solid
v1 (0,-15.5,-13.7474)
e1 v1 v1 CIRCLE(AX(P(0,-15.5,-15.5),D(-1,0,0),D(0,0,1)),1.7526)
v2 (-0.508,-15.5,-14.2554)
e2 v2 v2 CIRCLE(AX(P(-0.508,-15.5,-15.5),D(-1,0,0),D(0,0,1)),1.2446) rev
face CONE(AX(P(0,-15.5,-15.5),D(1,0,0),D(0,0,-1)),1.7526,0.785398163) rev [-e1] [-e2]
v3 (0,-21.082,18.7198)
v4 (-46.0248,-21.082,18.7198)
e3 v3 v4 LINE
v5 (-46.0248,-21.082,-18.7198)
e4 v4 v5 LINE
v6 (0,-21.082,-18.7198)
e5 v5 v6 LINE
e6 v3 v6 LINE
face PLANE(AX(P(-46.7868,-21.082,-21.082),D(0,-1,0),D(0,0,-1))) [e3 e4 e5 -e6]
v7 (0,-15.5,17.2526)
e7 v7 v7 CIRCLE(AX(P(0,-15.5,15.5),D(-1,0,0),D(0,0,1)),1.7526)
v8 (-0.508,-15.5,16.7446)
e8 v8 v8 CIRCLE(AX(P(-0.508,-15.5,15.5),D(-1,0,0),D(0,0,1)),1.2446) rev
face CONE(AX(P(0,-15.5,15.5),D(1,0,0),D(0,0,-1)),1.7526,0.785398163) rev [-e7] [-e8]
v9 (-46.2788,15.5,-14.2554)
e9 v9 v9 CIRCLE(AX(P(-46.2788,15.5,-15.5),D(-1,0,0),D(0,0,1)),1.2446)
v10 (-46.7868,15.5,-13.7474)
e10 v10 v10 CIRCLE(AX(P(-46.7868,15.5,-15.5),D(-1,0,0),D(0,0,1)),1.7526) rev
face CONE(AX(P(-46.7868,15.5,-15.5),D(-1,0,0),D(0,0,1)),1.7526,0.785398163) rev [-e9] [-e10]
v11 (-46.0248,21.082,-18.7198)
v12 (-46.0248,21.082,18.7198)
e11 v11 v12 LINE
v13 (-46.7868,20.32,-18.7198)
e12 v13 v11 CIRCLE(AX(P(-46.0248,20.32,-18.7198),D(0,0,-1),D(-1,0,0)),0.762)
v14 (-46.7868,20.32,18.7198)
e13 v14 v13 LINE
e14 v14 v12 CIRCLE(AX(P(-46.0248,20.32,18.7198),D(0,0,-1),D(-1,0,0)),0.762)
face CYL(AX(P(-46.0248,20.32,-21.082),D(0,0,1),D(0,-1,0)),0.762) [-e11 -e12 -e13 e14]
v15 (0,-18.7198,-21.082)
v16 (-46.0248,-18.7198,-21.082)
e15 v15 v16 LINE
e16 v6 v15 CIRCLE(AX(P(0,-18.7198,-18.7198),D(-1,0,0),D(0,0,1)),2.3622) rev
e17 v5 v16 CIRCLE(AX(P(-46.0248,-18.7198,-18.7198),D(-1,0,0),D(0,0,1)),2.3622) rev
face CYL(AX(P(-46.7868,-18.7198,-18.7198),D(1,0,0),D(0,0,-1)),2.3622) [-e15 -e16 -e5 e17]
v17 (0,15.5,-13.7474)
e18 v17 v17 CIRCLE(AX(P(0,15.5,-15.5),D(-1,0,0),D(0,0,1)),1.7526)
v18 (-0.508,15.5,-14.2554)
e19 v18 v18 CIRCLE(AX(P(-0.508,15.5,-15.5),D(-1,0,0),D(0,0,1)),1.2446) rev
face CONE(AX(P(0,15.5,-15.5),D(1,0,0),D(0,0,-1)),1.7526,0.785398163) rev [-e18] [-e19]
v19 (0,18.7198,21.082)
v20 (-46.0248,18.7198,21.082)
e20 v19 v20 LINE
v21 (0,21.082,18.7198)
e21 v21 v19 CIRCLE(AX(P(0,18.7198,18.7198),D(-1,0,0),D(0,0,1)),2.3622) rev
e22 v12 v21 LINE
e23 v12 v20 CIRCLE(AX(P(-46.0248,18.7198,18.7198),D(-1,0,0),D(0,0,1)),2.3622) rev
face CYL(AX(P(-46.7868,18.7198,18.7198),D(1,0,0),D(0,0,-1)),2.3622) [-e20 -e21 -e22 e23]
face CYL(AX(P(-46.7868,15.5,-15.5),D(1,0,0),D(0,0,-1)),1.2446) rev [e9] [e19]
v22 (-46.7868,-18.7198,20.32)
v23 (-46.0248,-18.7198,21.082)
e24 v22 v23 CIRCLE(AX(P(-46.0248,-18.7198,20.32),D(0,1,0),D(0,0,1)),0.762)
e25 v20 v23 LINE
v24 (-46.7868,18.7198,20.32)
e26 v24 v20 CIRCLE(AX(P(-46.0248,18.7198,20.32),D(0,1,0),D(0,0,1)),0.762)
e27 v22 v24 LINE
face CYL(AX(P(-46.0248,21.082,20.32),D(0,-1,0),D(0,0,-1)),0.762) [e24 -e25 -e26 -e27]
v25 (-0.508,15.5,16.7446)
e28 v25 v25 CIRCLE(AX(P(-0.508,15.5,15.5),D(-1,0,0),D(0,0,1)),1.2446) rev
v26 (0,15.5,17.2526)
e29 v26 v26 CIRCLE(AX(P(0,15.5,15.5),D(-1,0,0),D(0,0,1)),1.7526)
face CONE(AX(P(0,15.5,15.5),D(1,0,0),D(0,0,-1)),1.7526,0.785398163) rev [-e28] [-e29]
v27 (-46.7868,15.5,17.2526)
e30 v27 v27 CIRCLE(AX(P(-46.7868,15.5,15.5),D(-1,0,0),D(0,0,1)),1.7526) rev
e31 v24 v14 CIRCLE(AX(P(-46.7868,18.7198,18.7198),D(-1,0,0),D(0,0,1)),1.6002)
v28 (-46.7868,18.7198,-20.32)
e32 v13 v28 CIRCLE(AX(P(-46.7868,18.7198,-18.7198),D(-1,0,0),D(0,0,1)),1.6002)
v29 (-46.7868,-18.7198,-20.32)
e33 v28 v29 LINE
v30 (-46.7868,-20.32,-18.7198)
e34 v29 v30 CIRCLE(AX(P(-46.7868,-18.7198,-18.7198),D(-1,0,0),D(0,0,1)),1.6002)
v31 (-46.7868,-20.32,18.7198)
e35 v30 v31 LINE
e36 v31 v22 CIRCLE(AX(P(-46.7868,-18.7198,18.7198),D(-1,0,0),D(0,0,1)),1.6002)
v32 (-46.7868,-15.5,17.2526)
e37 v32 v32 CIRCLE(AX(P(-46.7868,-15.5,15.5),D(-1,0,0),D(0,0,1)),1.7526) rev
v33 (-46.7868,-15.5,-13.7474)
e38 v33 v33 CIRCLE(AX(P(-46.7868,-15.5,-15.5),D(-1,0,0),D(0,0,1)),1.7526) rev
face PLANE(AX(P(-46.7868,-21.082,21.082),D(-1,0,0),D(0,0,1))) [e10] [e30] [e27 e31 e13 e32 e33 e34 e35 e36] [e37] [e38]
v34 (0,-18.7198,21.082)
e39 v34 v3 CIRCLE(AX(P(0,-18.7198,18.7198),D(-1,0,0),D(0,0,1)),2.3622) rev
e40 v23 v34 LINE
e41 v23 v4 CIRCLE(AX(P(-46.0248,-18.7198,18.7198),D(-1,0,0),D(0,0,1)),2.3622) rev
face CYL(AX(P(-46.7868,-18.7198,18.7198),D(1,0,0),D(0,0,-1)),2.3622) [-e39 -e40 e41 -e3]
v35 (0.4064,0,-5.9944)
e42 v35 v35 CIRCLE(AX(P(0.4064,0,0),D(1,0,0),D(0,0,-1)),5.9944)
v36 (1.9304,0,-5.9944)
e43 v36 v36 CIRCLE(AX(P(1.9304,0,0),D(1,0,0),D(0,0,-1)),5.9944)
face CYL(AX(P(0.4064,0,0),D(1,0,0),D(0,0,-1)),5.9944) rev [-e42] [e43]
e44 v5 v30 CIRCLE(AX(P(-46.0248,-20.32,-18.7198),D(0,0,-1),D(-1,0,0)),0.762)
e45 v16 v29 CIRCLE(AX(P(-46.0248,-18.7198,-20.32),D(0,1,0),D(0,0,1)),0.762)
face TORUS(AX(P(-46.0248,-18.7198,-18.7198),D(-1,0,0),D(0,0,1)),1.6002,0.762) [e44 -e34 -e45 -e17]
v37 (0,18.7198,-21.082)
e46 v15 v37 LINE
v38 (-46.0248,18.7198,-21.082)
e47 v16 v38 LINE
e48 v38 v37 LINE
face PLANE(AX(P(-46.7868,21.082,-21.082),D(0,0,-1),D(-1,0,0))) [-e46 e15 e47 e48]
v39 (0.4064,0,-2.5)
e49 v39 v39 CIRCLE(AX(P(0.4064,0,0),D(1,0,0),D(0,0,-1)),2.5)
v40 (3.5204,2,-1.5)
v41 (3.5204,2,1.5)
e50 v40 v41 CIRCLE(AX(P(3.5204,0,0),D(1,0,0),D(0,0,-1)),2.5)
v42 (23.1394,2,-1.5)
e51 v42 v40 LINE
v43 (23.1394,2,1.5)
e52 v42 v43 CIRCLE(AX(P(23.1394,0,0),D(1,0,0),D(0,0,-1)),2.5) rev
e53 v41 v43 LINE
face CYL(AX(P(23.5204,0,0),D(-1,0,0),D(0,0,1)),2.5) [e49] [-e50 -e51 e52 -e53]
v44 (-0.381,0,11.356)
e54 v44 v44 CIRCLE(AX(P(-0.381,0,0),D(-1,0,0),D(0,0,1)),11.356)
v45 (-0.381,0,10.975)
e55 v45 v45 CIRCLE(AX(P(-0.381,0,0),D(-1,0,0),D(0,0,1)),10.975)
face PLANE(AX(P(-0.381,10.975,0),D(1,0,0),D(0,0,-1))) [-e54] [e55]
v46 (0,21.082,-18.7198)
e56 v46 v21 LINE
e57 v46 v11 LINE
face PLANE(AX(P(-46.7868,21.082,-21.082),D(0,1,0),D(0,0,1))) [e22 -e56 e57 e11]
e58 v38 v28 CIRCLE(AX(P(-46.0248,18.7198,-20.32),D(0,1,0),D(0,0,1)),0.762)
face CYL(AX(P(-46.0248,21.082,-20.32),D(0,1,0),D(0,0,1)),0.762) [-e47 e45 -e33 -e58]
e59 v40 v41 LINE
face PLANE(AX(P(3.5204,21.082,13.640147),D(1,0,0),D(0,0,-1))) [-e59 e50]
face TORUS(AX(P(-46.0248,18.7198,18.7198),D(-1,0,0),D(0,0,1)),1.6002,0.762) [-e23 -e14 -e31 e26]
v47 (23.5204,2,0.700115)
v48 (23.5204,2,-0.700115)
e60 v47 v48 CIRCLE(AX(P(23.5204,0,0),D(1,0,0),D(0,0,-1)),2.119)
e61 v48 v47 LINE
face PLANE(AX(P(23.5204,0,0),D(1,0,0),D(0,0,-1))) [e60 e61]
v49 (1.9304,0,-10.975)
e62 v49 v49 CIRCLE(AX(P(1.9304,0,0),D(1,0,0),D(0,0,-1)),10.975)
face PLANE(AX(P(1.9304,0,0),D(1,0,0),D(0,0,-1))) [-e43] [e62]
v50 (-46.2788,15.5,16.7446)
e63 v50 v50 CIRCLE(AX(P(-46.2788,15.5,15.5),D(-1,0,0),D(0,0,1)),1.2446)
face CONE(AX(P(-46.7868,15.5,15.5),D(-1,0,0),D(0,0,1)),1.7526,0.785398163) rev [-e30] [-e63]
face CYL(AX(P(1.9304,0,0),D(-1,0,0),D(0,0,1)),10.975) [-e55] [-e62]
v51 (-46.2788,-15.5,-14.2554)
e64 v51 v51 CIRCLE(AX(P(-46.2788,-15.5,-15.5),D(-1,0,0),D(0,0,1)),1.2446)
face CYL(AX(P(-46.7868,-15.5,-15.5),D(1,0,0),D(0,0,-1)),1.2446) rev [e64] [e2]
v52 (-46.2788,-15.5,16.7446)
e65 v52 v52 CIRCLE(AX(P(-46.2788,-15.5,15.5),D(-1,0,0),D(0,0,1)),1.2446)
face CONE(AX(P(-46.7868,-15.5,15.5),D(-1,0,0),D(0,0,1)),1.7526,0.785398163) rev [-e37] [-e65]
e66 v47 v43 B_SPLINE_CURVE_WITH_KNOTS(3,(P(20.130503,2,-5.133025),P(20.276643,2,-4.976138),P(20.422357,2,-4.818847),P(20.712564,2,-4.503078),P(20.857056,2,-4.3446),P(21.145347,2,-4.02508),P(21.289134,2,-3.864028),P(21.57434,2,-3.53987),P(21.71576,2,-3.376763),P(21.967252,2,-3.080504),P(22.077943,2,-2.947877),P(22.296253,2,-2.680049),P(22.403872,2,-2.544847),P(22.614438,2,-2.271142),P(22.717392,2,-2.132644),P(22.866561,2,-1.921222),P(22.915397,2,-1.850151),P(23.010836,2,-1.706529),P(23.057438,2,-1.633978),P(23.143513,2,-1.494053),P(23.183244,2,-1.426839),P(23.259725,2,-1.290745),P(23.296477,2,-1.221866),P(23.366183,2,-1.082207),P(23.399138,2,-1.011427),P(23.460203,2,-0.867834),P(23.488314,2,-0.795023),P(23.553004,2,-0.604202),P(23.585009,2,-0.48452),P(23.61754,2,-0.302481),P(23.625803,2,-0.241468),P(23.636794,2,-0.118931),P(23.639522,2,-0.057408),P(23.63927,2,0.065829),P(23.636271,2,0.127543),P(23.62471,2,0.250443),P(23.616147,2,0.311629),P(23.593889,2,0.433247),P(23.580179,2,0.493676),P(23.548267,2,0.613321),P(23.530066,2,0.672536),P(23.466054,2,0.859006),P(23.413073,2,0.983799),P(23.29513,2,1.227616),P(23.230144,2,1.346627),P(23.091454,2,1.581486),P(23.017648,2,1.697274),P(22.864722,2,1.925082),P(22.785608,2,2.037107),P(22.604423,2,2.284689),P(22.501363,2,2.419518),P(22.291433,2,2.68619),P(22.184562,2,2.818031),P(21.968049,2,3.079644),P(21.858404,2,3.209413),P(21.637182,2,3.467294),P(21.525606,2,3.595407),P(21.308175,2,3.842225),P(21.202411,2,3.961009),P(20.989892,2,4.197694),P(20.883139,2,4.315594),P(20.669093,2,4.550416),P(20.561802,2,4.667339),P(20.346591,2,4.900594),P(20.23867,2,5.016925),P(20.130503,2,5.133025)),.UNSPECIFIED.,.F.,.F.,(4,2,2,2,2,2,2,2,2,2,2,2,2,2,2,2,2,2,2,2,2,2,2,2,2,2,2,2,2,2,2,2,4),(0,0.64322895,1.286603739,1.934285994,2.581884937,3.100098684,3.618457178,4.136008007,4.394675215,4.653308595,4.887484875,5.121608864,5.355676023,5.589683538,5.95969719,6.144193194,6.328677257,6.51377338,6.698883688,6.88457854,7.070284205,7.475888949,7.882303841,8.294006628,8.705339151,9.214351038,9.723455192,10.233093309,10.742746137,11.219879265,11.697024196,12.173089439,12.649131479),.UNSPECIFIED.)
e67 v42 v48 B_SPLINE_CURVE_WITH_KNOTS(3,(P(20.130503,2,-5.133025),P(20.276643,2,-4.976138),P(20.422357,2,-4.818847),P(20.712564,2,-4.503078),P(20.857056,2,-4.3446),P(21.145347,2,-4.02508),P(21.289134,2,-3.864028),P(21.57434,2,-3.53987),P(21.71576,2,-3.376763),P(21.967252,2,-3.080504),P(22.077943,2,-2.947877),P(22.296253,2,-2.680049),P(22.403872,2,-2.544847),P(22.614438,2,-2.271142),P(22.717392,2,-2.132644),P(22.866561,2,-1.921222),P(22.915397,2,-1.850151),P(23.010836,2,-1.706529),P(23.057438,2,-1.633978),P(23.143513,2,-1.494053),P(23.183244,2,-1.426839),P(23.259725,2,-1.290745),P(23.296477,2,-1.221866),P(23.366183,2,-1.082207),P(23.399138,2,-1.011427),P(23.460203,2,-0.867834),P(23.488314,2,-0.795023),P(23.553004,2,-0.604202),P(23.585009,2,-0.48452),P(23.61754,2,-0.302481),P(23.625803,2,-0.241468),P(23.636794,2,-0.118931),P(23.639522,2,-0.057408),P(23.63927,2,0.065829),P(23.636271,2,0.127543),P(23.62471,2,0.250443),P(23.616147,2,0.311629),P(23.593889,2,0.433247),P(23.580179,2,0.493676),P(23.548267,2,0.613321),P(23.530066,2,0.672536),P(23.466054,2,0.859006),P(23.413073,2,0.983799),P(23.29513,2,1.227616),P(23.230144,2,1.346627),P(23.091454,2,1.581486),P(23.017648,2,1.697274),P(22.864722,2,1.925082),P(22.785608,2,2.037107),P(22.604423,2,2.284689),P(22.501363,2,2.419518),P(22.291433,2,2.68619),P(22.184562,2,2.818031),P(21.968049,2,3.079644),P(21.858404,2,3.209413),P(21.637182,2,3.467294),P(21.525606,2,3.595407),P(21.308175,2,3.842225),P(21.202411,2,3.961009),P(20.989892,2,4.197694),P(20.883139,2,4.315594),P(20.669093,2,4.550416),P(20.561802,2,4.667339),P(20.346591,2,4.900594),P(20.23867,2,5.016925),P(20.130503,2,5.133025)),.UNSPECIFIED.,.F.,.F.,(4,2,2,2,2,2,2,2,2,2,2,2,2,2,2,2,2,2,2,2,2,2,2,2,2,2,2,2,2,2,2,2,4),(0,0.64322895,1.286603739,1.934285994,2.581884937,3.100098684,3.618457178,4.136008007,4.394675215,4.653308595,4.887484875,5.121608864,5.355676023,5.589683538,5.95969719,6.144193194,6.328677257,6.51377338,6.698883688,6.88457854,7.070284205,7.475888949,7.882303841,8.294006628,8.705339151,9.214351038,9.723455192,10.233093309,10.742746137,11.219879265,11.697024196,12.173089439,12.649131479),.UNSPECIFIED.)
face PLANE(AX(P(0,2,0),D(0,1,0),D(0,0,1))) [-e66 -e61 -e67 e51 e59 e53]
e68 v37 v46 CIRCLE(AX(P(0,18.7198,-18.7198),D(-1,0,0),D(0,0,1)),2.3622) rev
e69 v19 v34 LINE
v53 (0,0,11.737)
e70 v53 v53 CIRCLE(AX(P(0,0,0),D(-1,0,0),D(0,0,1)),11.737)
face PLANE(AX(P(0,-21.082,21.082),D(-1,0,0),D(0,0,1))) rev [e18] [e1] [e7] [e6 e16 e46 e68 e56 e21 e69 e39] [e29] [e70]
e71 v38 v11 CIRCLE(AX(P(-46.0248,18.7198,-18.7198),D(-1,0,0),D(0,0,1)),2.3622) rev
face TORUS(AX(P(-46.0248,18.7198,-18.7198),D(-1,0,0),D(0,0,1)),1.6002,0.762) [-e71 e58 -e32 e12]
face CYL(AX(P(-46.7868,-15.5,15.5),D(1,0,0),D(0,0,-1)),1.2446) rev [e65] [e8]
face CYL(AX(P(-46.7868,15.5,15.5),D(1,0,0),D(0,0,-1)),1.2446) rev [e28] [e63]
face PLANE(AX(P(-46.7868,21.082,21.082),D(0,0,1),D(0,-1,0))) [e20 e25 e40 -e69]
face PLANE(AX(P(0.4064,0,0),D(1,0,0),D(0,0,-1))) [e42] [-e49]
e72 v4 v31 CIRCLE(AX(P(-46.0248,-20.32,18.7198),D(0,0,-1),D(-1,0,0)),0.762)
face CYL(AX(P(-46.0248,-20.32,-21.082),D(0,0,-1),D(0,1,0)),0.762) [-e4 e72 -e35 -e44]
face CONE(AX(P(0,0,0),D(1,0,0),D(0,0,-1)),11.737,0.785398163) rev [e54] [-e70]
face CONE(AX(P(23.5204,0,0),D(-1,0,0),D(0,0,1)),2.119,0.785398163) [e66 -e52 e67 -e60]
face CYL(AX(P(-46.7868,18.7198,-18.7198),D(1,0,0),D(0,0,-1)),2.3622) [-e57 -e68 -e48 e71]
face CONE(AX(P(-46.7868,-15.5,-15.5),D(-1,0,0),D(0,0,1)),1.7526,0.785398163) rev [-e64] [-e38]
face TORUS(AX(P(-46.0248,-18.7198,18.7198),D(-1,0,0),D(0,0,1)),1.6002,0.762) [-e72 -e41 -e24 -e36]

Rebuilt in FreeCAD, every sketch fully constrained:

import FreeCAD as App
import Part
import Sketcher
Q = App.Units.Quantity


def edges_at(feature, points):
    """Names of the edges that pass closest to the given points."""
    edges = feature.Shape.Edges
    near = lambda p: min(range(len(edges)), key=lambda i: edges[i].distToShape(Part.Vertex(*p))[0])
    return sorted({f"Edge{near(p) + 1}" for p in points})

doc = App.newDocument("Part")
params = doc.addObject("Spreadsheet::Sheet", "Params")
for row, (alias, value) in enumerate([
    ("sketch1_width", "1.66 in"),
    ("pad1_length", "1.842 in"),
    ("fillet_radius", "0.093 in"),
    ("pad2_length", "0.076 in"),
    ("sketch3_height", "0.03 in"),
    ("groove_angle", "360 deg"),
    ("pad3_length", "0.85 in"),
    ("chamfer_size", "0.015 in"),
    ("sketch5_diameter", "0.472 in"),
    ("pocket1_length", "0.06 in"),
    ("sketch6_diameter", "0.098 in"),
    ("fillet2_radius", "0.03 in"),
    ("chamfer2_size", "0.02 in"),
], start=1):
    params.set(f"A{row}", alias)
    params.set(f"B{row}", "=" + value)
    params.setAlias(f"B{row}", alias)

body = doc.addObject("PartDesign::Body", "Body")

sketch1 = doc.addObject("Sketcher::SketchObject", "Sketch")
body.addObject(sketch1)
sketch1.AttachmentSupport = (doc.YZ_Plane, [""])
sketch1.MapMode = "FlatFace"
sketch1.addGeometry([
    Part.LineSegment(App.Vector(21, 21, 0), App.Vector(-21, 21, 0)),
    Part.LineSegment(App.Vector(-21, 21, 0), App.Vector(-21, -21, 0)),
    Part.LineSegment(App.Vector(-21, -21, 0), App.Vector(21, -21, 0)),
    Part.LineSegment(App.Vector(21, -21, 0), App.Vector(21, 21, 0)),
], False)
sketch1.addConstraint([
    Sketcher.Constraint("Coincident", 0, 2, 1, 1),
    Sketcher.Constraint("Coincident", 1, 2, 2, 1),
    Sketcher.Constraint("Coincident", 2, 2, 3, 1),
    Sketcher.Constraint("Coincident", 3, 2, 0, 1),
    Sketcher.Constraint("Horizontal", 0),
    Sketcher.Constraint("Vertical", 1),
    Sketcher.Constraint("Horizontal", 2),
    Sketcher.Constraint("Vertical", 3),
    Sketcher.Constraint("Symmetric", 0, 2, 2, 2, -1, 1),
    Sketcher.Constraint("Equal", 2, 1),
    Sketcher.Constraint("DistanceX", 0, 2, 0, 1, Q("1.66 in")),
])
sketch1.setExpression("Constraints[10]", "Params.sketch1_width")
pad1 = doc.addObject("PartDesign::Pad", "Pad")
body.addObject(pad1)
pad1.Profile = sketch1
pad1.setExpression("Length", "Params.pad1_length")
pad1.Reversed = True
doc.recompute()

fillet = doc.addObject("PartDesign::Fillet", "Fillet")
body.addObject(fillet)
fillet.Base = (pad1, edges_at(pad1, [
    (-23.393, 21.082, 21.082),
    (-23.393, 21.082, -21.082),
    (-23.393, -21.082, -21.082),
    (-23.393, -21.082, 21.082),
]))
fillet.setExpression("Radius", "Params.fillet_radius")

sketch2 = doc.addObject("Sketcher::SketchObject", "Sketch001")
body.addObject(sketch2)
sketch2.AttachmentSupport = (doc.YZ_Plane, [""])
sketch2.MapMode = "FlatFace"
sketch2.addGeometry(Part.Circle(App.Vector(0, 0, 0), App.Vector(0, 0, 1), 11), False)
sketch2.addConstraint([
    Sketcher.Constraint("Coincident", 0, 3, -1, 1),
    Sketcher.Constraint("Diameter", 0, Q("21.95 mm")),
])
pad2 = doc.addObject("PartDesign::Pad", "Pad001")
body.addObject(pad2)
pad2.Profile = sketch2
pad2.setExpression("Length", "Params.pad2_length")

sketch3 = doc.addObject("Sketcher::SketchObject", "Sketch002")
body.addObject(sketch3)
sketch3.AttachmentSupport = (doc.XY_Plane, [""])
sketch3.MapMode = "FlatFace"
sketch3.addGeometry([
    Part.LineSegment(App.Vector(-0.38, 10.97, 0), App.Vector(0, 10.97, 0)),
    Part.LineSegment(App.Vector(0, 10.97, 0), App.Vector(0, 11.74, 0)),
    Part.LineSegment(App.Vector(0, 11.74, 0), App.Vector(-0.38, 11.36, 0)),
    Part.LineSegment(App.Vector(-0.38, 11.36, 0), App.Vector(-0.38, 10.97, 0)),
], False)
sketch3.addConstraint([
    Sketcher.Constraint("Coincident", 0, 2, 1, 1),
    Sketcher.Constraint("Coincident", 1, 2, 2, 1),
    Sketcher.Constraint("Coincident", 2, 2, 3, 1),
    Sketcher.Constraint("Coincident", 3, 2, 0, 1),
    Sketcher.Constraint("Horizontal", 0),
    Sketcher.Constraint("Vertical", 1),
    Sketcher.Constraint("Vertical", 3),
    Sketcher.Constraint("PointOnObject", 0, 2, -2),
    Sketcher.Constraint("Equal", 0, 3),
    Sketcher.Constraint("Angle", 2, Q("-135 deg")),
    Sketcher.Constraint("DistanceY", 1, 1, 1, 2, Q("0.03 in")),
    Sketcher.Constraint("DistanceY", -1, 1, 0, 2, Q("10.975 mm")),
])
sketch3.setExpression("Constraints[10]", "Params.sketch3_height")
groove = doc.addObject("PartDesign::Groove", "Groove")
body.addObject(groove)
groove.Profile = sketch3
groove.ReferenceAxis = (sketch3, ["H_Axis"])
groove.setExpression("Angle", "Params.groove_angle")

sketch4 = doc.addObject("Sketcher::SketchObject", "Sketch003")
body.addObject(sketch4)
sketch4.AttachmentSupport = (doc.YZ_Plane, [""])
sketch4.MapMode = "FlatFace"
sketch4.AttachmentOffset = App.Placement(App.Vector(0, 0, 0.076 * 25.4), App.Rotation())
sketch4.addGeometry(Part.Circle(App.Vector(0, 0, 0), App.Vector(0, 0, 1), 2.5), False)
sketch4.addConstraint([
    Sketcher.Constraint("Coincident", 0, 3, -1, 1),
    Sketcher.Constraint("Diameter", 0, Q("5 mm")),
])
pad3 = doc.addObject("PartDesign::Pad", "Pad002")
body.addObject(pad3)
pad3.Profile = sketch4
pad3.setExpression("Length", "Params.pad3_length")
doc.recompute()

chamfer = doc.addObject("PartDesign::Chamfer", "Chamfer")
body.addObject(chamfer)
chamfer.Base = (pad3, edges_at(pad3, [(23.52, 0, 2.5)]))
chamfer.setExpression("Size", "Params.chamfer_size")

sketch5 = doc.addObject("Sketcher::SketchObject", "Sketch004")
body.addObject(sketch5)
sketch5.AttachmentSupport = (doc.YZ_Plane, [""])
sketch5.MapMode = "FlatFace"
sketch5.AttachmentOffset = App.Placement(App.Vector(0, 0, 0.076 * 25.4), App.Rotation())
sketch5.addGeometry([
    Part.Circle(App.Vector(0, 0, 0), App.Vector(0, 0, 1), 6),
    Part.Circle(App.Vector(0, 0, 0), App.Vector(0, 0, 1), 2.5),
], False)
sketch5.addConstraint([
    Sketcher.Constraint("Coincident", 0, 3, -1, 1),
    Sketcher.Constraint("Coincident", 1, 3, -1, 1),
    Sketcher.Constraint("Diameter", 0, Q("0.472 in")),
    Sketcher.Constraint("Diameter", 1, Q("5 mm")),
])
sketch5.setExpression("Constraints[2]", "Params.sketch5_diameter")
pocket1 = doc.addObject("PartDesign::Pocket", "Pocket")
body.addObject(pocket1)
pocket1.Profile = sketch5
pocket1.setExpression("Length", "Params.pocket1_length")

sketch6 = doc.addObject("Sketcher::SketchObject", "Sketch005")
body.addObject(sketch6)
sketch6.AttachmentSupport = (doc.YZ_Plane, [""])
sketch6.MapMode = "FlatFace"
sketch6.AttachmentOffset = App.Placement(App.Vector(0, 0, -0.2 * 25.4), App.Rotation())
sketch6.addGeometry([
    Part.Circle(App.Vector(15.5, 15.5, 0), App.Vector(0, 0, 1), 1.2),
    Part.Circle(App.Vector(-15.5, 15.5, 0), App.Vector(0, 0, 1), 1.2),
    Part.Circle(App.Vector(-15.5, -15.5, 0), App.Vector(0, 0, 1), 1.2),
    Part.Circle(App.Vector(15.5, -15.5, 0), App.Vector(0, 0, 1), 1.2),
], False)
sketch6.addConstraint([
    Sketcher.Constraint("Equal", 0, 1),
    Sketcher.Constraint("Equal", 1, 2),
    Sketcher.Constraint("Equal", 2, 3),
    Sketcher.Constraint("Symmetric", 0, 3, 2, 3, -1, 1),
    Sketcher.Constraint("Symmetric", 1, 3, 3, 3, -1, 1),
    Sketcher.Constraint("Symmetric", 0, 3, 1, 3, -2),
    Sketcher.Constraint("Diameter", 0, Q("0.098 in")),
    Sketcher.Constraint("DistanceX", -1, 1, 0, 3, Q("15.5 mm")),
    Sketcher.Constraint("DistanceY", -1, 1, 0, 3, Q("15.5 mm")),
])
sketch6.setExpression("Constraints[6]", "Params.sketch6_diameter")
pocket2 = doc.addObject("PartDesign::Pocket", "Pocket001")
body.addObject(pocket2)
pocket2.Profile = sketch6
pocket2.Type = "ThroughAll"
pocket2.Midplane = True
doc.recompute()

fillet2 = doc.addObject("PartDesign::Fillet", "Fillet001")
body.addObject(fillet2)
fillet2.Base = (pocket2, edges_at(pocket2, [
    (-46.787, -21.082, 0),
    (-46.787, 0, -21.082),
    (-46.787, 0, 21.082),
    (-46.787, 21.082, 0),
    (-46.787, 20.39, 20.39),
    (-46.787, -20.39, 20.39),
    (-46.787, 20.39, -20.39),
    (-46.787, -20.39, -20.39),
]))
fillet2.setExpression("Radius", "Params.fillet2_radius")
doc.recompute()

chamfer2 = doc.addObject("PartDesign::Chamfer", "Chamfer001")
body.addObject(chamfer2)
chamfer2.Base = (fillet2, edges_at(fillet2, [
    (-46.787, 15.5, 16.745),
    (0, 15.5, 16.745),
    (-46.787, -15.5, 16.745),
    (0, -15.5, 16.745),
    (-46.787, -15.5, -14.255),
    (0, -15.5, -14.255),
    (-46.787, 15.5, -14.255),
    (0, 15.5, -14.255),
]))
chamfer2.setExpression("Size", "Params.chamfer2_size")

sketch7 = doc.addObject("Sketcher::SketchObject", "Sketch006")
body.addObject(sketch7)
sketch7.AttachmentSupport = (doc.XZ_Plane, [""])
sketch7.MapMode = "FlatFace"
sketch7.AttachmentOffset = App.Placement(App.Vector(0, 0, -2), App.Rotation())
sketch7.addGeometry([
    Part.LineSegment(App.Vector(4, -14, 0), App.Vector(4, 14, 0)),
    Part.LineSegment(App.Vector(4, 14, 0), App.Vector(44, 14, 0)),
    Part.LineSegment(App.Vector(44, 14, 0), App.Vector(44, -14, 0)),
    Part.LineSegment(App.Vector(44, -14, 0), App.Vector(4, -14, 0)),
], False)
sketch7.addConstraint([
    Sketcher.Constraint("Coincident", 0, 2, 1, 1),
    Sketcher.Constraint("Coincident", 1, 2, 2, 1),
    Sketcher.Constraint("Coincident", 2, 2, 3, 1),
    Sketcher.Constraint("Coincident", 3, 2, 0, 1),
    Sketcher.Constraint("Vertical", 0),
    Sketcher.Constraint("Horizontal", 1),
    Sketcher.Constraint("Vertical", 2),
    Sketcher.Constraint("Horizontal", 3),
    Sketcher.Constraint("DistanceX", 1, 1, 1, 2, Q("40 mm")),
    Sketcher.Constraint("DistanceX", -1, 1, 0, 2, Q("3.5204 mm")),
    Sketcher.Constraint("DistanceY", 0, 1, 0, 2, Q("27.280293 mm")),
    Sketcher.Constraint("DistanceY", -1, 1, 0, 2, Q("13.640147 mm")),
])
pocket3 = doc.addObject("PartDesign::Pocket", "Pocket002")
body.addObject(pocket3)
pocket3.Profile = sketch7
pocket3.Type = "ThroughAll"

doc.recompute()
